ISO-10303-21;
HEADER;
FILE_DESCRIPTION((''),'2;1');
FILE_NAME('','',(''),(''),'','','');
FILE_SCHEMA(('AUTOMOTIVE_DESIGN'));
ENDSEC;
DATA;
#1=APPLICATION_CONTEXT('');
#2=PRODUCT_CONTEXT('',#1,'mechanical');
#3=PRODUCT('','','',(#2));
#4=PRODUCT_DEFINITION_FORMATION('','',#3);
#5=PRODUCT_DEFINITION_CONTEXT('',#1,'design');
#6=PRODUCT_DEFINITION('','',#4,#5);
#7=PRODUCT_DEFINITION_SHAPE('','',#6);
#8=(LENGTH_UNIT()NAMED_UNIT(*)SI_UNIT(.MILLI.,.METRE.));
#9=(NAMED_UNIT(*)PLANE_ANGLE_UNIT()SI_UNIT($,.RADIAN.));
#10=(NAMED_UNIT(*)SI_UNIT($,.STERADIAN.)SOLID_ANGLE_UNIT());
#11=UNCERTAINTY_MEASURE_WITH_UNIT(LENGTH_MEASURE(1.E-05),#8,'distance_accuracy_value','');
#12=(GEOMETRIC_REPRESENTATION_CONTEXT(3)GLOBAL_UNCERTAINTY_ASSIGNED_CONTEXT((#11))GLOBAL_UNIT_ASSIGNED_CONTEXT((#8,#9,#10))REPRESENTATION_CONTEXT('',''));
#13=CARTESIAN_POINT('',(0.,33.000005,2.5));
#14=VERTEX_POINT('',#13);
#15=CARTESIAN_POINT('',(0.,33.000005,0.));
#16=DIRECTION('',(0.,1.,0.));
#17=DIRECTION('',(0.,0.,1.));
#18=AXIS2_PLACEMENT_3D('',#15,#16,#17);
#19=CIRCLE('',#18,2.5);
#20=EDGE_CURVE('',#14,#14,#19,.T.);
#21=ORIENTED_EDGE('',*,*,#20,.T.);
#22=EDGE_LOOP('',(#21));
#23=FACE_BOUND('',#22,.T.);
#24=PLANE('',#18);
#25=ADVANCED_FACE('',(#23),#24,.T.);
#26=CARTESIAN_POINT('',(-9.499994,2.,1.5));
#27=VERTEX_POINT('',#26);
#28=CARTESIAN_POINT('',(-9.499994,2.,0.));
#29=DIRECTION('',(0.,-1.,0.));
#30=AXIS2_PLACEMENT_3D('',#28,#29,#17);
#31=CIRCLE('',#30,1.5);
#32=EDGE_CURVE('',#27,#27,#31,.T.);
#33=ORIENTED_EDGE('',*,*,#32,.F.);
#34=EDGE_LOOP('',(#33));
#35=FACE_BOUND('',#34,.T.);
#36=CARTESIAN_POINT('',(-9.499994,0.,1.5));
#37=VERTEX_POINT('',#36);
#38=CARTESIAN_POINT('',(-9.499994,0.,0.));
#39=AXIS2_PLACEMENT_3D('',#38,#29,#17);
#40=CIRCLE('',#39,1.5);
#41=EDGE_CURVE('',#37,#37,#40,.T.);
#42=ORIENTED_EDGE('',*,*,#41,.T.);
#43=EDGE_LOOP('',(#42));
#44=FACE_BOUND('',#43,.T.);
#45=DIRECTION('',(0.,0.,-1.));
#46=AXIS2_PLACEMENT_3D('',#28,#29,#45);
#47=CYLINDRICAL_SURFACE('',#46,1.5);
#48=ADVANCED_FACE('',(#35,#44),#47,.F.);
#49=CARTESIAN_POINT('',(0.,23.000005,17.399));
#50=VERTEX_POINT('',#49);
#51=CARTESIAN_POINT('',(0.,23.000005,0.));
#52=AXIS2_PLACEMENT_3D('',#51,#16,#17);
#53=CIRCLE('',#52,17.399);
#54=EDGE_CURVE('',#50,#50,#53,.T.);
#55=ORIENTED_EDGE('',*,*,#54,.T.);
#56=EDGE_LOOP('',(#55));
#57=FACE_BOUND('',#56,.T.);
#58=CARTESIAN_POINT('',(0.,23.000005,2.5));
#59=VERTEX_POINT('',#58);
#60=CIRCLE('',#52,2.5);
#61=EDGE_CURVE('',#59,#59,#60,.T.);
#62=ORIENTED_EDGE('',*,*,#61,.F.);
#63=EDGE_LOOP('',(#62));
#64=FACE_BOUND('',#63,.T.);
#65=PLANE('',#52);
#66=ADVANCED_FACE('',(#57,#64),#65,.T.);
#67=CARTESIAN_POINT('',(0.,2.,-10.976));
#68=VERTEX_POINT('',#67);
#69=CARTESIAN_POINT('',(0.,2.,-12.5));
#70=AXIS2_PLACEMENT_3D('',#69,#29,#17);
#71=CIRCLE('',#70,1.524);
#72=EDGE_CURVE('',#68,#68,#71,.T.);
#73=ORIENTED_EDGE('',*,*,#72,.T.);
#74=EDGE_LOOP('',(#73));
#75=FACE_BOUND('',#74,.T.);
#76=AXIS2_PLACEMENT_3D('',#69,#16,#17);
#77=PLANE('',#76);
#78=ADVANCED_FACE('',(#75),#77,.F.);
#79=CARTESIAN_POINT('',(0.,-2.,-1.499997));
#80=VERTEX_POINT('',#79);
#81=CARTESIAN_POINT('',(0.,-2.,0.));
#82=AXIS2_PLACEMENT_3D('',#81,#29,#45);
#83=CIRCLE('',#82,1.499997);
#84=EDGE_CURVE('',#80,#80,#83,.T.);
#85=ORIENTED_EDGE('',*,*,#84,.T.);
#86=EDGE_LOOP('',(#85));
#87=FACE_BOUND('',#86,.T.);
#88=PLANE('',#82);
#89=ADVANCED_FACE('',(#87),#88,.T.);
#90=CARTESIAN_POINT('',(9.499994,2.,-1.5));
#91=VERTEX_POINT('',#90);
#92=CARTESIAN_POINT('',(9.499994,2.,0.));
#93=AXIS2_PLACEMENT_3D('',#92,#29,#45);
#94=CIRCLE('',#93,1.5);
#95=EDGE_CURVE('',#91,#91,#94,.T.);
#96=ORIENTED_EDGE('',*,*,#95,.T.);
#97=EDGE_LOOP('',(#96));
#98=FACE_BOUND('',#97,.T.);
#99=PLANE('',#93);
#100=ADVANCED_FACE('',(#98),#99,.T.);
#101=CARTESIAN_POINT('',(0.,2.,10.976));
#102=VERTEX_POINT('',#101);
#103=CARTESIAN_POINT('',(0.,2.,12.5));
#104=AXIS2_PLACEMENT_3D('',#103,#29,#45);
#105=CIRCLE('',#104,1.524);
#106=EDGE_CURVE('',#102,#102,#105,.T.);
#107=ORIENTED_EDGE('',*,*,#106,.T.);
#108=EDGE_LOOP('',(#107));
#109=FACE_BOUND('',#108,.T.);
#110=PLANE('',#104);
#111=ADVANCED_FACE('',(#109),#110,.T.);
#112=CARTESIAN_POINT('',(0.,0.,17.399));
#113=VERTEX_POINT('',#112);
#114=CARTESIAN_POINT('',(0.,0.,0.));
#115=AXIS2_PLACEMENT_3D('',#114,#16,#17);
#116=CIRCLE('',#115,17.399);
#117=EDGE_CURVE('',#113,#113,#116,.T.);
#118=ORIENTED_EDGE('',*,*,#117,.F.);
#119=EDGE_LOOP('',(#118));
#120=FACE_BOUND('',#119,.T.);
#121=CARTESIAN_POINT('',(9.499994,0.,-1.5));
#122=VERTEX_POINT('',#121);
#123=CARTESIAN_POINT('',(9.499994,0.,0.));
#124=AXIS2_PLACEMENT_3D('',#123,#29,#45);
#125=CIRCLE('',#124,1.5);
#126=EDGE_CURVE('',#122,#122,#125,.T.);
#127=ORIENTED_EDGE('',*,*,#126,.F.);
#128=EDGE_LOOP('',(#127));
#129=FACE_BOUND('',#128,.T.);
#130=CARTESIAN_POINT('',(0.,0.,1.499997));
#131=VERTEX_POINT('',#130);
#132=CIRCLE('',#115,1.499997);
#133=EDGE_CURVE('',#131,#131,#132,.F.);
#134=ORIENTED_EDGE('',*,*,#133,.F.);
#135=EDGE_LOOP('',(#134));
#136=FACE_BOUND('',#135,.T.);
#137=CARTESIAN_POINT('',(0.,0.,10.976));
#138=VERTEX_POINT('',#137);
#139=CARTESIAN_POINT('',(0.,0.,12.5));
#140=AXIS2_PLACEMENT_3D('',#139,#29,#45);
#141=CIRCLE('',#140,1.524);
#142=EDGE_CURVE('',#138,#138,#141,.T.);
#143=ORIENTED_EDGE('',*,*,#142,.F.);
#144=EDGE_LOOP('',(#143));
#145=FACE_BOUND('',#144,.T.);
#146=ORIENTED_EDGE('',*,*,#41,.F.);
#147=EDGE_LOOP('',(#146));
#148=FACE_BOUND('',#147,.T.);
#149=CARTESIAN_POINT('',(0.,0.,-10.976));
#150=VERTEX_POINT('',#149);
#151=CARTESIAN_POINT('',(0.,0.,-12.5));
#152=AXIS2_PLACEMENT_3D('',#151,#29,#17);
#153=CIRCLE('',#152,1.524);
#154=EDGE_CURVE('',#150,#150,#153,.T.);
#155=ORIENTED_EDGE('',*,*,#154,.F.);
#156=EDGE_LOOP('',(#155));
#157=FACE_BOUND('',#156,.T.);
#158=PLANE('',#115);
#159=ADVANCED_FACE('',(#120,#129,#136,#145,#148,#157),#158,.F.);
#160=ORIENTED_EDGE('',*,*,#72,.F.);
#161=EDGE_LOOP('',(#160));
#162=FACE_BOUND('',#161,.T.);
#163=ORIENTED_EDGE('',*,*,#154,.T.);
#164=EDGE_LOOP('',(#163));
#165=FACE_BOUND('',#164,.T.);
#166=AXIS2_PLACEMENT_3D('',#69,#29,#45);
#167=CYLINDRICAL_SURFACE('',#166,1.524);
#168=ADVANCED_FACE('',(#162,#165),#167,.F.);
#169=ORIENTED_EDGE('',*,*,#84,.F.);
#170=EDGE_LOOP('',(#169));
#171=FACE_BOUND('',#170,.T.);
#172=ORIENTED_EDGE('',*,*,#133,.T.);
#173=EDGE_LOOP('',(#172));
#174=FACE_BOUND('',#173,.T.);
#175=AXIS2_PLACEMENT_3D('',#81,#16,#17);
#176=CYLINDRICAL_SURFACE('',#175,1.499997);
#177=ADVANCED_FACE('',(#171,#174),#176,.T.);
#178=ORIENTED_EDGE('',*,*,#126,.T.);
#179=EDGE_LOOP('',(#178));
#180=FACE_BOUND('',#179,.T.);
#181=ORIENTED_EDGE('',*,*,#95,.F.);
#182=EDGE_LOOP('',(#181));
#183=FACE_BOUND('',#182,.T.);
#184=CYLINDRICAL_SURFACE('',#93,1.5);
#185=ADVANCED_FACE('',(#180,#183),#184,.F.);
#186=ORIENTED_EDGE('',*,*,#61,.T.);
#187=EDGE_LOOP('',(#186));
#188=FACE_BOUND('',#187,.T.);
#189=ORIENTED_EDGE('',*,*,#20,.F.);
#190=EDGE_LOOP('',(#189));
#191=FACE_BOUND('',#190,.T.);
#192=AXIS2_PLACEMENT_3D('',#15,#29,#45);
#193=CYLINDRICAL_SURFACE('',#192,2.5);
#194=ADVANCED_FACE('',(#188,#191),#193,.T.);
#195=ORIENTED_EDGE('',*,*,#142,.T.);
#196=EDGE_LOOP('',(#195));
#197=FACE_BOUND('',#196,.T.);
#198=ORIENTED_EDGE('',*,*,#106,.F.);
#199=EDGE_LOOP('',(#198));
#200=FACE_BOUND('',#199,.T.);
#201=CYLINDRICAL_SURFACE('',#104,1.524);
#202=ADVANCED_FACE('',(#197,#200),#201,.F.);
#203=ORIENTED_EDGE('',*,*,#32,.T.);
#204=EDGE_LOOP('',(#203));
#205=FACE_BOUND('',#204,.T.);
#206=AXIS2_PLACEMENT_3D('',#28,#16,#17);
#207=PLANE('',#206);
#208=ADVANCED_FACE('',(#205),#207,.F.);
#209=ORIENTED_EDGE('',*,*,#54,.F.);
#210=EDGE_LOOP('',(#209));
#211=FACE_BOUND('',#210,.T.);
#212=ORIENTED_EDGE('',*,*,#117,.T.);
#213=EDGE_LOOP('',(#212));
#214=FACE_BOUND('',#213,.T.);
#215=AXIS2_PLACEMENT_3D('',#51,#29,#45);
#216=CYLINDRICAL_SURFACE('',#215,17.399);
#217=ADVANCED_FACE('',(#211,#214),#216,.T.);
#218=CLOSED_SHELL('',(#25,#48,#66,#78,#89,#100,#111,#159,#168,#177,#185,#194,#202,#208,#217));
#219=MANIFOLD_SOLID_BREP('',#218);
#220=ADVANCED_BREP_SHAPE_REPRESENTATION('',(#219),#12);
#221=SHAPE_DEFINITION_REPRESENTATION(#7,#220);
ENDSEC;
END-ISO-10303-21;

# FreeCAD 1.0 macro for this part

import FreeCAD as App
import Part
import Sketcher

V = App.Vector

doc = App.newDocument("Part")
body = doc.addObject("PartDesign::Body", "Body")

# Sketch on XZ plane
sketch1 = doc.addObject("Sketcher::SketchObject", "Sketch")
body.addObject(sketch1)
sketch1.AttachmentSupport = (doc.XZ_Plane, [""])
sketch1.MapMode = "FlatFace"
sketch1.addGeometry(Part.Circle(V(0, 0, 0), V(0, 0, 1), 17.399), False)
sketch1.addConstraint([
    Sketcher.Constraint("Coincident", 0, 3, -1, 1),
    Sketcher.Constraint("Diameter", 0, 34.798),
])
pad1 = doc.addObject("PartDesign::Pad", "Pad")
body.addObject(pad1)
pad1.Profile = sketch1
pad1.Length = 23.000005
pad1.Reversed = True

# Sketch on XZ plane
sketch2 = doc.addObject("Sketcher::SketchObject", "Sketch001")
body.addObject(sketch2)
sketch2.AttachmentSupport = (doc.XZ_Plane, [""])
sketch2.MapMode = "FlatFace"
sketch2.AttachmentOffset = App.Placement(V(0, 0, -23.000005), App.Rotation())
sketch2.addGeometry(Part.Circle(V(0, 0, 0), V(0, 0, 1), 2.5), False)
sketch2.addConstraint([
    Sketcher.Constraint("Coincident", 0, 3, -1, 1),
    Sketcher.Constraint("Diameter", 0, 5.0),
])
pad2 = doc.addObject("PartDesign::Pad", "Pad001")
body.addObject(pad2)
pad2.Profile = sketch2
pad2.Length = 10
pad2.Reversed = True

# Sketch on XZ plane
sketch3 = doc.addObject("Sketcher::SketchObject", "Sketch002")
body.addObject(sketch3)
sketch3.AttachmentSupport = (doc.XZ_Plane, [""])
sketch3.MapMode = "FlatFace"
sketch3.addGeometry(Part.Circle(V(0, 0, 0), V(0, 0, 1), 1.499997), False)
sketch3.addConstraint([
    Sketcher.Constraint("Coincident", 0, 3, -1, 1),
    Sketcher.Constraint("Diameter", 0, 2.999994),
])
pad3 = doc.addObject("PartDesign::Pad", "Pad002")
body.addObject(pad3)
pad3.Profile = sketch3
pad3.Length = 2

# Sketch on XZ plane
sketch4 = doc.addObject("Sketcher::SketchObject", "Sketch003")
body.addObject(sketch4)
sketch4.AttachmentSupport = (doc.XZ_Plane, [""])
sketch4.MapMode = "FlatFace"
sketch4.addGeometry([
    Part.Circle(V(0, 12.5, 0), V(0, 0, 1), 1.524),
    Part.Circle(V(9.499994, 0, 0), V(0, 0, 1), 1.5),
    Part.Circle(V(-9.499994, 0, 0), V(0, 0, 1), 1.5),
    Part.Circle(V(0, -12.5, 0), V(0, 0, 1), 1.524),
], False)
sketch4.addConstraint([
    Sketcher.Constraint("Equal", 1, 2),
    Sketcher.Constraint("Equal", 0, 3),
    Sketcher.Constraint("Symmetric", 1, 3, 2, 3, -1, 1),
    Sketcher.Constraint("Symmetric", 0, 3, 3, 3, -1, 1),
    Sketcher.Constraint("PointOnObject", 0, 3, -2),
    Sketcher.Constraint("PointOnObject", 1, 3, -1),
    Sketcher.Constraint("Diameter", 1, 3.0),
    Sketcher.Constraint("Diameter", 0, 3.048),
    Sketcher.Constraint("DistanceY", 3, 3, 0, 3, 25.000001),
    Sketcher.Constraint("DistanceX", -1, 1, 1, 3, 9.499994),
])
pocket1 = doc.addObject("PartDesign::Pocket", "Pocket")
body.addObject(pocket1)
pocket1.Profile = sketch4
pocket1.Length = 2

doc.recompute()
